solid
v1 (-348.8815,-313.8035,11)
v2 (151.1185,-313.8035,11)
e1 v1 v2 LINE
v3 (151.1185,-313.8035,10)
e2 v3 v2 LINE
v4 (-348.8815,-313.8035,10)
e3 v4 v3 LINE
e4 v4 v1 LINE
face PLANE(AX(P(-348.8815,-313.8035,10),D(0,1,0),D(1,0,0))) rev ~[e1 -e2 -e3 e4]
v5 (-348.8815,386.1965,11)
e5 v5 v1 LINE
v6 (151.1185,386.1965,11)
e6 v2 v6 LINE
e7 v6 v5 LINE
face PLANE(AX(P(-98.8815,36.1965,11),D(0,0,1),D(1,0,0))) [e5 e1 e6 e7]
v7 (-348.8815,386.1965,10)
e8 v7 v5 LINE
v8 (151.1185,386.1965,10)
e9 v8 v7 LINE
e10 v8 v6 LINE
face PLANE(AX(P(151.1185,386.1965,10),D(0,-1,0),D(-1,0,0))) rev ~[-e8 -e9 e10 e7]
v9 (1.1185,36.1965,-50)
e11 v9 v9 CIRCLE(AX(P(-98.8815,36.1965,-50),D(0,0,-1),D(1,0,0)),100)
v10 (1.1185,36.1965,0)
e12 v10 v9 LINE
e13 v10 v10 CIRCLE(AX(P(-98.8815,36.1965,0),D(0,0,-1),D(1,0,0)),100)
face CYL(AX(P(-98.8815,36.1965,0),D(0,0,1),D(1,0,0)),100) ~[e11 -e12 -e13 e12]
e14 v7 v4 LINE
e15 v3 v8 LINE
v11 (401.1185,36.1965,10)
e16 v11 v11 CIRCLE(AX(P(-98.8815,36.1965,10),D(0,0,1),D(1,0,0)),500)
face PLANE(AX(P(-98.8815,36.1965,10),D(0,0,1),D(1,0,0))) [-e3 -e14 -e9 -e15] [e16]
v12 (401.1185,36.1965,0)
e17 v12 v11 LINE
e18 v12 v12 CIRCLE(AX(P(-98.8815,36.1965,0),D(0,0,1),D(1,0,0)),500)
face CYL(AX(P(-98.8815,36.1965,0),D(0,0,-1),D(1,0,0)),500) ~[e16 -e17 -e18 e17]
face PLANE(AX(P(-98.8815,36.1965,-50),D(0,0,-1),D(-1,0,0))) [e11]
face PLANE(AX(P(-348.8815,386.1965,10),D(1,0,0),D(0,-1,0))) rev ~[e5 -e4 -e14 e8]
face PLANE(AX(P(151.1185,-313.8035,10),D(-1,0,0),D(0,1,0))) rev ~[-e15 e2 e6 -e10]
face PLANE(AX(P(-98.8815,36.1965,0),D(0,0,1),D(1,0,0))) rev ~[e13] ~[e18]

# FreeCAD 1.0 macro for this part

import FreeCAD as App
import Part
import Sketcher

V = App.Vector


def add_polygon(sketch, points):
    """Adds a closed chain of lines whose ends are joined by coincident constraints."""
    first, n = sketch.GeometryCount, len(points)
    for a, b in zip(points, points[1:] + points[:1]):
        sketch.addGeometry(Part.LineSegment(App.Vector(*a, 0), App.Vector(*b, 0)), False)
    for i in range(n):
        sketch.addConstraint(Sketcher.Constraint("Coincident", first + i, 2, first + (i + 1) % n, 1))

doc = App.newDocument("Part")
params = doc.addObject("Spreadsheet::Sheet", "Params")
for row, (alias, value) in enumerate([
    ("sketch1_diameter", "1000 mm"),
    ("pad1_length", "10 mm"),
    ("sketch2_diameter", "200 mm"),
    ("pad2_length", "50 mm"),
    ("sketch3_width", "500 mm"),
    ("sketch3_height", "700 mm"),
    ("pad3_length", "1 mm"),
], start=1):
    params.set(f"A{row}", alias)
    params.set(f"B{row}", "=" + value)
    params.setAlias(f"B{row}", alias)

body = doc.addObject("PartDesign::Body", "Body")

# Sketch on XY plane
sketch1 = body.newObject("Sketcher::SketchObject", "Sketch")
sketch1.AttachmentSupport = (doc.getObject("XY_Plane"), [""])
sketch1.MapMode = "FlatFace"
sketch1.addGeometry(Part.Circle(V(-99, 36, 0), V(0, 0, 1), 500), False)
sketch1.addConstraint([
    Sketcher.Constraint("Diameter", 0, 1000.0),
    Sketcher.Constraint("DistanceX", 0, 3, -1, 1, 98.8815),
    Sketcher.Constraint("DistanceY", -1, 1, 0, 3, 36.1965),
])
sketch1.setExpression("Constraints[0]", "Params.sketch1_diameter")
pad1 = body.newObject("PartDesign::Pad", "Pad")
pad1.Profile = sketch1
pad1.setExpression("Length", "Params.pad1_length")

# Sketch on XY plane
sketch2 = body.newObject("Sketcher::SketchObject", "Sketch001")
sketch2.AttachmentSupport = (doc.getObject("XY_Plane"), [""])
sketch2.MapMode = "FlatFace"
sketch2.addGeometry(Part.Circle(V(-99, 36, 0), V(0, 0, 1), 100), False)
sketch2.addConstraint([
    Sketcher.Constraint("Diameter", 0, 200.0),
    Sketcher.Constraint("DistanceX", 0, 3, -1, 1, 98.8815),
    Sketcher.Constraint("DistanceY", -1, 1, 0, 3, 36.1965),
])
sketch2.setExpression("Constraints[0]", "Params.sketch2_diameter")
pad2 = body.newObject("PartDesign::Pad", "Pad001")
pad2.Profile = sketch2
pad2.setExpression("Length", "Params.pad2_length")
pad2.Reversed = True

# Sketch on XY plane
sketch3 = body.newObject("Sketcher::SketchObject", "Sketch002")
sketch3.AttachmentSupport = (doc.getObject("XY_Plane"), [""])
sketch3.MapMode = "FlatFace"
sketch3.AttachmentOffset = App.Placement(V(0, 0, 10), App.Rotation())
add_polygon(sketch3, [(151, 386), (-349, 386), (-349, -314), (151, -314)])  # lines 0-3
sketch3.addConstraint([
    Sketcher.Constraint("Horizontal", 0),
    Sketcher.Constraint("Vertical", 1),
    Sketcher.Constraint("Horizontal", 2),
    Sketcher.Constraint("Vertical", 3),
    Sketcher.Constraint("DistanceX", 0, 2, 0, 1, 500.0),
    Sketcher.Constraint("DistanceY", 1, 2, 1, 1, 700.0),
    Sketcher.Constraint("DistanceX", 0, 2, -1, 1, 348.8815),
    Sketcher.Constraint("DistanceY", -1, 1, 0, 2, 386.1965),
])
sketch3.setExpression("Constraints[8]", "Params.sketch3_width")
sketch3.setExpression("Constraints[9]", "Params.sketch3_height")
pad3 = body.newObject("PartDesign::Pad", "Pad002")
pad3.Profile = sketch3
pad3.setExpression("Length", "Params.pad3_length")

doc.recompute()
